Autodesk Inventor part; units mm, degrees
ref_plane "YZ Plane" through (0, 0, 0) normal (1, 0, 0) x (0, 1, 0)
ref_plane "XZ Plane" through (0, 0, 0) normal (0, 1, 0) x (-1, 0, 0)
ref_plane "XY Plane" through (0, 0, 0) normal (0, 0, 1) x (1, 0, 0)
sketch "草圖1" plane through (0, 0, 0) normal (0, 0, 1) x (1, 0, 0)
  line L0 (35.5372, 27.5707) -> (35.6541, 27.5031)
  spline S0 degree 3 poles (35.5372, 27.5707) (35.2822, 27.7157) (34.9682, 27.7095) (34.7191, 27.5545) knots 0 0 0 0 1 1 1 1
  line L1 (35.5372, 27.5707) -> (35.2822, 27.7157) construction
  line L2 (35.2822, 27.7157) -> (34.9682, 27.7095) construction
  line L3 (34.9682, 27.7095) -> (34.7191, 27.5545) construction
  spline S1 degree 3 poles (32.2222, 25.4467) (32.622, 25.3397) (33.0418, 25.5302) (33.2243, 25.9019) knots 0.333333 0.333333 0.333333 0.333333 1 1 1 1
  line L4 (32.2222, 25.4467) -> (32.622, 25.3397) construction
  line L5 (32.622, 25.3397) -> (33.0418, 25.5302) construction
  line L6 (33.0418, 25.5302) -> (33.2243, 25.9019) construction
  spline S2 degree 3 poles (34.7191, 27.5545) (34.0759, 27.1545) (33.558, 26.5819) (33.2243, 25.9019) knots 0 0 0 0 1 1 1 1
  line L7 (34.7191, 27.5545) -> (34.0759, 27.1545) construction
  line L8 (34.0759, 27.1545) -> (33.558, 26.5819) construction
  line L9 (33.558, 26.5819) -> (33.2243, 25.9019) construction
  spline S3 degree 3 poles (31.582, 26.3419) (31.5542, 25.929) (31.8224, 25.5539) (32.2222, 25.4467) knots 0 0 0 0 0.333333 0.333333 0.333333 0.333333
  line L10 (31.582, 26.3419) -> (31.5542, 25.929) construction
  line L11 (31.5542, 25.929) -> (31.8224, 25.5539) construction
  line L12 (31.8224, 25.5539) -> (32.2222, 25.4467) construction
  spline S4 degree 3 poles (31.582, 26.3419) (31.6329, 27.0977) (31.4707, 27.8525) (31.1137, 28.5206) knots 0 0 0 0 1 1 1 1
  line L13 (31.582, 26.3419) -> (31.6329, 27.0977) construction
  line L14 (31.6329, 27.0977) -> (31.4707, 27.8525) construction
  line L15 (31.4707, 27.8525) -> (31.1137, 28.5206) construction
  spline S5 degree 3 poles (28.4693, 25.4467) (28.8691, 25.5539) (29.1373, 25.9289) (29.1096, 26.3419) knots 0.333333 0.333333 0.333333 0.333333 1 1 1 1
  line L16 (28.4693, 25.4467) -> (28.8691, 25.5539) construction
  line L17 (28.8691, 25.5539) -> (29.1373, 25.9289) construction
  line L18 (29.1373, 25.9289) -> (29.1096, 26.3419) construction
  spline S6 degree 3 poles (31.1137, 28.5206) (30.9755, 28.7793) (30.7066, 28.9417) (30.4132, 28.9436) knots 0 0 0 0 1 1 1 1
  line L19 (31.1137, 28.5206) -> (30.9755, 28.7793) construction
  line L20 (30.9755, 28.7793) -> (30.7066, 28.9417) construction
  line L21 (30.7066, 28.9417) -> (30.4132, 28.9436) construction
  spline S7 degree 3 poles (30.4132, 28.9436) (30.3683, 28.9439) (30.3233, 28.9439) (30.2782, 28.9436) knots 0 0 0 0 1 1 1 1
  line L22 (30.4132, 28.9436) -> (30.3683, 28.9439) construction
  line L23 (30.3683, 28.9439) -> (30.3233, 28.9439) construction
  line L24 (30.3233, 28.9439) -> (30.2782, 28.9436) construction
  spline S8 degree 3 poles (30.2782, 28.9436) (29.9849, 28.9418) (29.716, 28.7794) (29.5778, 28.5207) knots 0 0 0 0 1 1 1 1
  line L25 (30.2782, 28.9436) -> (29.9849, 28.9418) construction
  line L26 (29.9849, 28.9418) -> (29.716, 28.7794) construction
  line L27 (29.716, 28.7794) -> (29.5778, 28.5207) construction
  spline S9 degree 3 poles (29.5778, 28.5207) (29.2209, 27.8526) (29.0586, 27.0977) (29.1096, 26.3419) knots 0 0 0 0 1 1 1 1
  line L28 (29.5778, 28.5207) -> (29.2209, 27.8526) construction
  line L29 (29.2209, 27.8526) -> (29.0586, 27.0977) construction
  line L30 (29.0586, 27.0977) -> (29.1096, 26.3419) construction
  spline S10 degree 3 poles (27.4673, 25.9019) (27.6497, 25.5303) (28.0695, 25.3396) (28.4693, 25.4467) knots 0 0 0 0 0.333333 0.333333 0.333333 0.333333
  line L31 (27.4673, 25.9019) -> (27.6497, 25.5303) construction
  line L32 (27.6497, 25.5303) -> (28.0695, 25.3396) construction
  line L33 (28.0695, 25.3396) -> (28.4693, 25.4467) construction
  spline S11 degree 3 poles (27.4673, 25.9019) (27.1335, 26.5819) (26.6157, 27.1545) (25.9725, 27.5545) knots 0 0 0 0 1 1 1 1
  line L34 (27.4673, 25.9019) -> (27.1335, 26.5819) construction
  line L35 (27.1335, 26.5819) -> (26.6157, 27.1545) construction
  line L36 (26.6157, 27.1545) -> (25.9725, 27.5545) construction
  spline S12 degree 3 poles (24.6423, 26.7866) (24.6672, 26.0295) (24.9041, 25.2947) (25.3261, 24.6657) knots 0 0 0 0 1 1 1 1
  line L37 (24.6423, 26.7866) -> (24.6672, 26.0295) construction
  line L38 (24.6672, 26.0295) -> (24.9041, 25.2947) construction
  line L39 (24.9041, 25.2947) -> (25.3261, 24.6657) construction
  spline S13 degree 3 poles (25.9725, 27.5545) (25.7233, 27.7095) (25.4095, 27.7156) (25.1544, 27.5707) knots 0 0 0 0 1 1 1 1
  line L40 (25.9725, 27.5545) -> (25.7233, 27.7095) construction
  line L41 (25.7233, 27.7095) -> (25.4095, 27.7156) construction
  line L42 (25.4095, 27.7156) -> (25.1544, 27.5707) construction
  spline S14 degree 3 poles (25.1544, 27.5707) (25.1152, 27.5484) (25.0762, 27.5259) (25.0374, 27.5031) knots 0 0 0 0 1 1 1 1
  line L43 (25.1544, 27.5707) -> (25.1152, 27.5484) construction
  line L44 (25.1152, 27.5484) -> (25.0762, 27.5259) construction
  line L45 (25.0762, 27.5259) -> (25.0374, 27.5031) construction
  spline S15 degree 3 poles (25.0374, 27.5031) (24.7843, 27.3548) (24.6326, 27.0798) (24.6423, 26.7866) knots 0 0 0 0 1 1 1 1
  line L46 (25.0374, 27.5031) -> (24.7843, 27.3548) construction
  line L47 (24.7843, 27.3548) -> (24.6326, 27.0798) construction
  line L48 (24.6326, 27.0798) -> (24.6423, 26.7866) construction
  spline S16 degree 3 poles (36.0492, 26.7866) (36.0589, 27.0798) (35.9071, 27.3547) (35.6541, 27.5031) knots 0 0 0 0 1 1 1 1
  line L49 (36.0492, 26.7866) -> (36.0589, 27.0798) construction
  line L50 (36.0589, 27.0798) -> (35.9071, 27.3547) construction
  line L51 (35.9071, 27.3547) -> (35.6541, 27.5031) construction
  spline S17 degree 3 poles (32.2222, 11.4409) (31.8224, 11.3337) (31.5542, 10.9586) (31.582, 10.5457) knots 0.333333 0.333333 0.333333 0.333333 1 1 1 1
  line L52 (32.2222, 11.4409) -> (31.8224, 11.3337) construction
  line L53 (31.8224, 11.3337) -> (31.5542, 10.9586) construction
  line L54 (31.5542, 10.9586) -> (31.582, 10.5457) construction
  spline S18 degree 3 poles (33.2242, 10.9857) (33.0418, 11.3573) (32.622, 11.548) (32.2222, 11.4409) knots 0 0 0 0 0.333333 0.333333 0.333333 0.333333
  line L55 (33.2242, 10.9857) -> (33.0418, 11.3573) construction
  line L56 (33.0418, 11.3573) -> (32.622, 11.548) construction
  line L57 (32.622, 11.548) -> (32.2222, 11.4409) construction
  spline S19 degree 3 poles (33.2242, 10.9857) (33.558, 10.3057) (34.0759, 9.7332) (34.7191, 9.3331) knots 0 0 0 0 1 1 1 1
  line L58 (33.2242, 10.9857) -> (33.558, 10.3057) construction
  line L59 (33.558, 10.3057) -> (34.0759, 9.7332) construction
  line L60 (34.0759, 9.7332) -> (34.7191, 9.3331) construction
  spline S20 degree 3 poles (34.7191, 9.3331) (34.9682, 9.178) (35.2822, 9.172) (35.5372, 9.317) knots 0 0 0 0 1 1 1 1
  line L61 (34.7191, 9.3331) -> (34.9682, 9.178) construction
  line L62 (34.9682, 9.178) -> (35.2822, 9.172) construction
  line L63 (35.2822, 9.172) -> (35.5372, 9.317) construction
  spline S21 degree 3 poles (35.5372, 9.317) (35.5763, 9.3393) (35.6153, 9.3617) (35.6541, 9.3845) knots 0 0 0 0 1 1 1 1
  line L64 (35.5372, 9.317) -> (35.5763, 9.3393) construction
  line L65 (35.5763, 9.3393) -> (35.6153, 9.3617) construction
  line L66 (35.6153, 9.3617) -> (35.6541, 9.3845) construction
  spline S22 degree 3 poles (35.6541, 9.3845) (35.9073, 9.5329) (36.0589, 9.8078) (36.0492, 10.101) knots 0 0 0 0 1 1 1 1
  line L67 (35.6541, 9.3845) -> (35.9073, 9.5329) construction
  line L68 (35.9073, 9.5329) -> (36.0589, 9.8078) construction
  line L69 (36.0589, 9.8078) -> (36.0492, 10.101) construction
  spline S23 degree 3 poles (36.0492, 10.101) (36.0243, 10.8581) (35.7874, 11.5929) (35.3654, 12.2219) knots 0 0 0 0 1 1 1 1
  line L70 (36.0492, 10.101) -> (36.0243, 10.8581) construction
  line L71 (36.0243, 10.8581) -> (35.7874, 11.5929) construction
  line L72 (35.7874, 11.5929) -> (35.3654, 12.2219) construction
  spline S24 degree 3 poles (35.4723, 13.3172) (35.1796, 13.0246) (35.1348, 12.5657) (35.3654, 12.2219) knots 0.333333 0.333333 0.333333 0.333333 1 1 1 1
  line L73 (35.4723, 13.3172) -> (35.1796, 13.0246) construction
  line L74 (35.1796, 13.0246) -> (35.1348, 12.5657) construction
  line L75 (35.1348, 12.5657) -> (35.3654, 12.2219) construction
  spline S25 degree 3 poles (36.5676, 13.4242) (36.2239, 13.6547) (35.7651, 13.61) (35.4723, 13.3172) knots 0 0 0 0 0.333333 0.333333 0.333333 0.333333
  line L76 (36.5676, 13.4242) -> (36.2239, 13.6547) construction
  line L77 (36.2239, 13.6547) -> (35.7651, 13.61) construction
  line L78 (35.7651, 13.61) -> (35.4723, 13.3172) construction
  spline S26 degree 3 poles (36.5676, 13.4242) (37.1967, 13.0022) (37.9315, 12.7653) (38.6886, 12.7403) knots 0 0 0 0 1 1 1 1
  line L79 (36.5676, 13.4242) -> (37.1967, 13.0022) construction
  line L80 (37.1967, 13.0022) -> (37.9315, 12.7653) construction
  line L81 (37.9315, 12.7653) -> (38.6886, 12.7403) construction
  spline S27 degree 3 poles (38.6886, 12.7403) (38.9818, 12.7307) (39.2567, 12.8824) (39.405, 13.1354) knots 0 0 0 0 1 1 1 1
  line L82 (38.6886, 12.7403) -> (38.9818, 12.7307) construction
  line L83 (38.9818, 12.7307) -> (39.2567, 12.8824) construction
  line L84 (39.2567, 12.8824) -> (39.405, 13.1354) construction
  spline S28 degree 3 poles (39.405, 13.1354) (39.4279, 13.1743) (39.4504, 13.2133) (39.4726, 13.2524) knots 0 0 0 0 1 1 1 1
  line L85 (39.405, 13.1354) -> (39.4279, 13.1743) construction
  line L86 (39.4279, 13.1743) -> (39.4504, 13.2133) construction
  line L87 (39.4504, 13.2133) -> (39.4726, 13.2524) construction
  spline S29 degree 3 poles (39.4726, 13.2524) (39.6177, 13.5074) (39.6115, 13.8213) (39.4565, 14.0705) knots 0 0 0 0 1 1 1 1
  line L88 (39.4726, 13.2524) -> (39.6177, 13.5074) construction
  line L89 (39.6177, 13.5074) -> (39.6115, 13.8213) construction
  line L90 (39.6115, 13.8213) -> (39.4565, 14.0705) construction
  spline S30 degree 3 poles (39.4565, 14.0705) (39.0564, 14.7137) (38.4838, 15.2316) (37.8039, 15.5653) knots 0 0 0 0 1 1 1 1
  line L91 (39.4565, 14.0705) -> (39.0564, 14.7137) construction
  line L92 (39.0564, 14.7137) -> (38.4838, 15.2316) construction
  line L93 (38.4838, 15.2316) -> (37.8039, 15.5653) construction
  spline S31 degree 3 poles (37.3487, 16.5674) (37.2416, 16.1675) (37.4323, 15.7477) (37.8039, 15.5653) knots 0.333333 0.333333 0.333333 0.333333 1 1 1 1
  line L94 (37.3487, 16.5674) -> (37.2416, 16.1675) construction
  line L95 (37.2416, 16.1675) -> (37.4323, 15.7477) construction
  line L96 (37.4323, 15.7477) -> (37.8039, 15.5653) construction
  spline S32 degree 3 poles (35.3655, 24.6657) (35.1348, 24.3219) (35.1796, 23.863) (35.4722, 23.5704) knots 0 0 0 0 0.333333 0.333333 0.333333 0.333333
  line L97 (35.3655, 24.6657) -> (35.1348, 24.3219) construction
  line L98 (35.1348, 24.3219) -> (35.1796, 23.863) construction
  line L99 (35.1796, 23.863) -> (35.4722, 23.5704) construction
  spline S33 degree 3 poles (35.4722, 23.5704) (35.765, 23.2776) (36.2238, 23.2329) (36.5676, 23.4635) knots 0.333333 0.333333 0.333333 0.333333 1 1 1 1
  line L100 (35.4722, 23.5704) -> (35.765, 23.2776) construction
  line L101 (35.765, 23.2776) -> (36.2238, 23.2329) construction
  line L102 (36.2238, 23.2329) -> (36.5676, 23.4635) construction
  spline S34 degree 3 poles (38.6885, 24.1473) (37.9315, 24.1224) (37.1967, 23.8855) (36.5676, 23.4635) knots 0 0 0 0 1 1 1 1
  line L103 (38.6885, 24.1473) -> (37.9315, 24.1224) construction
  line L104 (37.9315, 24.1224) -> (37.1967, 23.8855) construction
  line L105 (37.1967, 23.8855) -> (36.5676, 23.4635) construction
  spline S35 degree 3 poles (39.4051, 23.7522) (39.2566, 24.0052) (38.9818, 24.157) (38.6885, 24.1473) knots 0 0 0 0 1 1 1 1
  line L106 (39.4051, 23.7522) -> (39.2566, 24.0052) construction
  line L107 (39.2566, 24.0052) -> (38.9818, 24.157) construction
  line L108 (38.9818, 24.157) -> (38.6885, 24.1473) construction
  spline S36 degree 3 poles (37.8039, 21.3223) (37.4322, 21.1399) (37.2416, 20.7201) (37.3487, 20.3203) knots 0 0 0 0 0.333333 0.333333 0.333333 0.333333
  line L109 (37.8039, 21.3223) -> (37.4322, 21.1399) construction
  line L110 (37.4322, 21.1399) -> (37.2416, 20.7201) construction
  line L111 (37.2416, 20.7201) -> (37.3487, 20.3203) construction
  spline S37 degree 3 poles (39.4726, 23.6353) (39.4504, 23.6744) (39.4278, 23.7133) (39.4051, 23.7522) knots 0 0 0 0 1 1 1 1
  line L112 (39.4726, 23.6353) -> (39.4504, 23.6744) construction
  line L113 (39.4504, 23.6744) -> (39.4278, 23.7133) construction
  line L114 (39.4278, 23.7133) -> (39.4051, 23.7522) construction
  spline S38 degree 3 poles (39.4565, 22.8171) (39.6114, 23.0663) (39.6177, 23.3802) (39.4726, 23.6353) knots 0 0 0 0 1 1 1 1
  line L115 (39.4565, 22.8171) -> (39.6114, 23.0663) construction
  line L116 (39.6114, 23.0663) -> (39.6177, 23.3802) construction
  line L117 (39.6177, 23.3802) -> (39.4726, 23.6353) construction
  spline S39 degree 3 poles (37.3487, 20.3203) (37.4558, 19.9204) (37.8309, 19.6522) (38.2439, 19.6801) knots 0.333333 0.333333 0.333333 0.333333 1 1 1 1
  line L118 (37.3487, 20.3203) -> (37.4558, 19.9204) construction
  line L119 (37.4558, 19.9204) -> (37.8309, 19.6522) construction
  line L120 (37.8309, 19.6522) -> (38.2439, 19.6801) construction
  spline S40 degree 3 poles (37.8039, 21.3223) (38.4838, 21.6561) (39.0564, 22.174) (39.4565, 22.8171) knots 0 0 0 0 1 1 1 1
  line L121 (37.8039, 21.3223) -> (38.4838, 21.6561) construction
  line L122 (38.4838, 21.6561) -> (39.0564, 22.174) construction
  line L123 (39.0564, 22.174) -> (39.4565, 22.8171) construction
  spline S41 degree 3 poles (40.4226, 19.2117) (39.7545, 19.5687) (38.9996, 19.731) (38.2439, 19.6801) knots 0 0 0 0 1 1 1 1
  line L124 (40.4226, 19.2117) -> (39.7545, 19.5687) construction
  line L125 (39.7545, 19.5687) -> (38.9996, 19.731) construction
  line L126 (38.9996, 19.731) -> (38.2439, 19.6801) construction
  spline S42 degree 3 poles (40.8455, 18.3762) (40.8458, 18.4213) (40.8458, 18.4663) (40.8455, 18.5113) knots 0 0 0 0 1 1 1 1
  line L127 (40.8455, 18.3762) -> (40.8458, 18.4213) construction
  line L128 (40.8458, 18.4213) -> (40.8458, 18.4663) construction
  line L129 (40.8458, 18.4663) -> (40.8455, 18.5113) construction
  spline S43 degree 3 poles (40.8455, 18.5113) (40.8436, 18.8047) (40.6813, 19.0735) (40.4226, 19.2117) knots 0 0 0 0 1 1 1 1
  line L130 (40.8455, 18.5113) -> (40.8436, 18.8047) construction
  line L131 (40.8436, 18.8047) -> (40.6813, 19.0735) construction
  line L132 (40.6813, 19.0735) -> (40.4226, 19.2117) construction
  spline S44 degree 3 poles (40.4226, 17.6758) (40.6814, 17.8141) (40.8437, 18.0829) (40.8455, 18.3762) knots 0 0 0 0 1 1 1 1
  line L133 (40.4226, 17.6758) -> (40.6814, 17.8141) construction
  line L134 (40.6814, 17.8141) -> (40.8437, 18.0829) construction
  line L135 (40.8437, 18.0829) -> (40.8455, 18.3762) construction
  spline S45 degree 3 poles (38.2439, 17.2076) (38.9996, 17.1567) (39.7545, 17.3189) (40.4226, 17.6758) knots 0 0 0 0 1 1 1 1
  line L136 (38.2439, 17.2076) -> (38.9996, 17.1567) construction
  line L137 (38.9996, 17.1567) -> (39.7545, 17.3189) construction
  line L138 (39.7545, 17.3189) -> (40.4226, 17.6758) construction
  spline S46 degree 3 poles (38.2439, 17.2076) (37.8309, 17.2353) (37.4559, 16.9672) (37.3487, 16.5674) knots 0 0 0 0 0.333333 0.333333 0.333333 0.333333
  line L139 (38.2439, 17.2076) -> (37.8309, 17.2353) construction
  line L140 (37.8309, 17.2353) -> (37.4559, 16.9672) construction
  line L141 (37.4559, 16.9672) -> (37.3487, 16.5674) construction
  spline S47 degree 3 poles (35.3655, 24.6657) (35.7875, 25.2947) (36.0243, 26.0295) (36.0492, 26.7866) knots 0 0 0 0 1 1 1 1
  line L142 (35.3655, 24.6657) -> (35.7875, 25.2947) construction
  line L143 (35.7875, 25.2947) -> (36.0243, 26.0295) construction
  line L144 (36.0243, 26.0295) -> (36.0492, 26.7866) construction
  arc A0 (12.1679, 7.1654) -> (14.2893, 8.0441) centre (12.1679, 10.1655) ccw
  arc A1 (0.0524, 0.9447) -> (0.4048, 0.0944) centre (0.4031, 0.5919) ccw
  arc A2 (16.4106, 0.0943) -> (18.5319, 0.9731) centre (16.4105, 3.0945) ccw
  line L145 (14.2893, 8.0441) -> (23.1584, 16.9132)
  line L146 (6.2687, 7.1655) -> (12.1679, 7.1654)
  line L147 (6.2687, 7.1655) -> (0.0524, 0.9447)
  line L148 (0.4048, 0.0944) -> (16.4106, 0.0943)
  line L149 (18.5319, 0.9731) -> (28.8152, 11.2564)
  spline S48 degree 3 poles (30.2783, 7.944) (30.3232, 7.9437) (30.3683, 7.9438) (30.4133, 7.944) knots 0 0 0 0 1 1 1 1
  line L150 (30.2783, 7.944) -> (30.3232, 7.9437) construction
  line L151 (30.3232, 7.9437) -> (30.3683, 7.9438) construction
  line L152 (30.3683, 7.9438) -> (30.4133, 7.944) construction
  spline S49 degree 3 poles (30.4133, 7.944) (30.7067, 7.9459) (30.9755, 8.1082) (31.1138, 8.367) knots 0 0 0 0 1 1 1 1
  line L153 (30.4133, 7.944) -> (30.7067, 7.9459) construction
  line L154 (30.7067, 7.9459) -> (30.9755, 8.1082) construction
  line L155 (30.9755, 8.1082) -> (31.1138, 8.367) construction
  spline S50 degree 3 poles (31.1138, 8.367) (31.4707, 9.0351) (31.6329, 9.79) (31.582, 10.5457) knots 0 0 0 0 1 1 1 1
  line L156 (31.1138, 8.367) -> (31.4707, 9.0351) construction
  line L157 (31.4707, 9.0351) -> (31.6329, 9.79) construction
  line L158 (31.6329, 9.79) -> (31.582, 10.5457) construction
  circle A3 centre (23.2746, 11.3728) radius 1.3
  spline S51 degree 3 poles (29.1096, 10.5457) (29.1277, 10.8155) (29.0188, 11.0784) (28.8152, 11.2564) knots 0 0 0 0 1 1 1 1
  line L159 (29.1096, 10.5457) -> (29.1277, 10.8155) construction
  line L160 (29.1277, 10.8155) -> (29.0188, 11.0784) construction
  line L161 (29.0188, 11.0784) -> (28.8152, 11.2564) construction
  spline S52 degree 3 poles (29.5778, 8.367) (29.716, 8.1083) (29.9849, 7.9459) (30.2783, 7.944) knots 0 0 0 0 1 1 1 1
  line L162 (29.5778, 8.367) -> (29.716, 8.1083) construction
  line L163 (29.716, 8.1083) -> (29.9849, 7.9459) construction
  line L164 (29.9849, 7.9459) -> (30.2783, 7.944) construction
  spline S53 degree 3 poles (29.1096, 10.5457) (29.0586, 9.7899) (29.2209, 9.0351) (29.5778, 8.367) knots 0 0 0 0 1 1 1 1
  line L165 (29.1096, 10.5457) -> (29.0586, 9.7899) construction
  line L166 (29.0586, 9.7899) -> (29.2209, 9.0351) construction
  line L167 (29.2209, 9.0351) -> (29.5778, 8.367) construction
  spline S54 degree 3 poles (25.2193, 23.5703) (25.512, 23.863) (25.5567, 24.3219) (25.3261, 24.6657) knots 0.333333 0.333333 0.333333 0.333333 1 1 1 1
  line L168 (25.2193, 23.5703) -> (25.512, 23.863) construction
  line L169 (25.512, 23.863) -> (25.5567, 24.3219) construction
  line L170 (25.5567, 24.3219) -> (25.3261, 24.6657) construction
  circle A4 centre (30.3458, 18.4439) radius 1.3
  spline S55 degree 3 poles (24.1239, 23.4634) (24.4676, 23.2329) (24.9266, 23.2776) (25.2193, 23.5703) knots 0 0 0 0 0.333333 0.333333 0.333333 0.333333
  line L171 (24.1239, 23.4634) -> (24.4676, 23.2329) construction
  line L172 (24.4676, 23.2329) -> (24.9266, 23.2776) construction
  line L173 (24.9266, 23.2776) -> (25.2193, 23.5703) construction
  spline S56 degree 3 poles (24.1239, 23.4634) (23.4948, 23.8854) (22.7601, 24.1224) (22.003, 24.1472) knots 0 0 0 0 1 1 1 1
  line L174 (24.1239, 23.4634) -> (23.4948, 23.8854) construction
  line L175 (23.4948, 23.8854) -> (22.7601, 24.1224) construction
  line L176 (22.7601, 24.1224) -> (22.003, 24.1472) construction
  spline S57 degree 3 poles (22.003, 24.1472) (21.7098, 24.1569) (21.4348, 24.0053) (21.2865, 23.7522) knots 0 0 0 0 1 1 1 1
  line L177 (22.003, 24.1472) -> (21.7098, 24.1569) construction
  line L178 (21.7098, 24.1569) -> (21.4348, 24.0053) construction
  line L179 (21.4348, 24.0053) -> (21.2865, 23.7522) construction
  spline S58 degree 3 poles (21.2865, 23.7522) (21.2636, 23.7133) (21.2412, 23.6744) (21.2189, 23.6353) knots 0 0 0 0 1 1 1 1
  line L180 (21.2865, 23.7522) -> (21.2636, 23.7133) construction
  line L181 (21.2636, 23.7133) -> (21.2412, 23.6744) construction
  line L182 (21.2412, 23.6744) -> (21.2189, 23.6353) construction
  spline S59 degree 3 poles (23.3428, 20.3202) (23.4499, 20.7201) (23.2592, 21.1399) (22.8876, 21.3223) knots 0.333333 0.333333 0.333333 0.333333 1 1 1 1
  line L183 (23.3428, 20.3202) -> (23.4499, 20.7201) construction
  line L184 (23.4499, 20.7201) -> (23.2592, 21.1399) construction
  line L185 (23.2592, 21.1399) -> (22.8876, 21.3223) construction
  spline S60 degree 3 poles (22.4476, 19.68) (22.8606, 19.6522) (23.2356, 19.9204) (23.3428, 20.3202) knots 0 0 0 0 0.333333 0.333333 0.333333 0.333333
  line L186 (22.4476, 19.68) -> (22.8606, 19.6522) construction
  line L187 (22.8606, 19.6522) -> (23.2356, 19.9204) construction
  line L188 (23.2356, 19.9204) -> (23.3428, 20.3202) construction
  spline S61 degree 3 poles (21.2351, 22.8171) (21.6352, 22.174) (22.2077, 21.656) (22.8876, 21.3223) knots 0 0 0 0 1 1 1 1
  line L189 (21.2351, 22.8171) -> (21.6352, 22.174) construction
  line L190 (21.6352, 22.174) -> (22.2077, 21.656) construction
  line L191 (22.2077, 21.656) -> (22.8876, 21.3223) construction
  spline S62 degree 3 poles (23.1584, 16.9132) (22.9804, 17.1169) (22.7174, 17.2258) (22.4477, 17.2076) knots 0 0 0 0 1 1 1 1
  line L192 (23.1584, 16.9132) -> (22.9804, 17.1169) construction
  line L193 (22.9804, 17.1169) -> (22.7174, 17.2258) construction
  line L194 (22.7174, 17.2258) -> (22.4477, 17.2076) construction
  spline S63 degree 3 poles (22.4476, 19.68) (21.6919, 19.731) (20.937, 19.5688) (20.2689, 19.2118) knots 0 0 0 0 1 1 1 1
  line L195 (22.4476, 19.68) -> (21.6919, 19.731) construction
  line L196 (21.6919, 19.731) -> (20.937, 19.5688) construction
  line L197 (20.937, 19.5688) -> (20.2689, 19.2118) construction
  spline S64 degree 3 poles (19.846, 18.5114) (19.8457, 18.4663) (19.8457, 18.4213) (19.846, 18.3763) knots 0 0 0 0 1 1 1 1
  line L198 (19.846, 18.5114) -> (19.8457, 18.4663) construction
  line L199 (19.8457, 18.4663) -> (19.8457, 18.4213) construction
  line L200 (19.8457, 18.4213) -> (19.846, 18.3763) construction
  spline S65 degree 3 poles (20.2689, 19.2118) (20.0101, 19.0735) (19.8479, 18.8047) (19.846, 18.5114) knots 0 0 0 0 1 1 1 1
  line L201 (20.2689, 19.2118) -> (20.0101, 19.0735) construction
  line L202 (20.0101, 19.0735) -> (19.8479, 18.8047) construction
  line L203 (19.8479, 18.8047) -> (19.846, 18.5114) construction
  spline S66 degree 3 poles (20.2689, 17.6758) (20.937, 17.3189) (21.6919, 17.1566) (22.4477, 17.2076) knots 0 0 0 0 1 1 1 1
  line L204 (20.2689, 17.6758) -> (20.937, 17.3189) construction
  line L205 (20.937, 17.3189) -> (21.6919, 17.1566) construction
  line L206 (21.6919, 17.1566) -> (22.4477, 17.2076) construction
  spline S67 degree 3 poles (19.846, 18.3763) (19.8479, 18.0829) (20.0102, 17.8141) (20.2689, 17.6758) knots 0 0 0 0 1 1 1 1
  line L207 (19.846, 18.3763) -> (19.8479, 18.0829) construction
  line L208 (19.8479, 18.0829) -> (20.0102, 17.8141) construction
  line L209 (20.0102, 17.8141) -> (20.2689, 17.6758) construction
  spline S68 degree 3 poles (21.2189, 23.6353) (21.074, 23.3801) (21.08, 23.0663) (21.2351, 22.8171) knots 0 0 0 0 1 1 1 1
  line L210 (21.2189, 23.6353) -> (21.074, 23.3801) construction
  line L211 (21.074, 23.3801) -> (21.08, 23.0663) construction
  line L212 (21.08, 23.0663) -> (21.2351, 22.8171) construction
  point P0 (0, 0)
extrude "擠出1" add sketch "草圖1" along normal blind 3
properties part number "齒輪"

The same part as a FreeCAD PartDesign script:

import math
import FreeCAD as App
import Part
import Sketcher

V = App.Vector

doc = App.newDocument("Part")
body = doc.addObject("PartDesign::Body", "Body")

# Sketch on XY plane
sketch1 = body.newObject("Sketcher::SketchObject", "Sketch")
sketch1.AttachmentSupport = (doc.getObject("XY_Plane"), [""])
sketch1.MapMode = "FlatFace"
sketch1.addGeometry([
    Part.LineSegment(V(35.6541, 27.5031, 0), V(35.5372, 27.5707, 0)),  # 0
    Part.BSplineCurve([V(35.5372, 27.5707, 0), V(35.2822, 27.7157, 0), V(34.9682, 27.7095, 0), V(34.7191, 27.5545, 0)], [4, 4], [0, 1], False, 3, [1, 1, 1, 1], False),  # 1
    Part.BSplineCurve([V(34.7191, 27.5545, 0), V(34.0759, 27.1545, 0), V(33.558, 26.5819, 0), V(33.2243, 25.9019, 0)], [4, 4], [0, 1], False, 3, [1, 1, 1, 1], False),  # 2
    Part.BSplineCurve([V(32.2222, 25.4467, 0), V(32.622, 25.3397, 0), V(33.0418, 25.5302, 0), V(33.2243, 25.9019, 0)], [4, 4], [0.333333, 1], False, 3, [1, 1, 1, 1], False),  # 3
    Part.BSplineCurve([V(31.582, 26.3419, 0), V(31.5542, 25.929, 0), V(31.8224, 25.5539, 0), V(32.2222, 25.4467, 0)], [4, 4], [0, 0.333333], False, 3, [1, 1, 1, 1], False),  # 4
    Part.BSplineCurve([V(31.582, 26.3419, 0), V(31.6329, 27.0977, 0), V(31.4707, 27.8525, 0), V(31.1137, 28.5206, 0)], [4, 4], [0, 1], False, 3, [1, 1, 1, 1], False),  # 5
    Part.BSplineCurve([V(31.1137, 28.5206, 0), V(30.9755, 28.7793, 0), V(30.7066, 28.9417, 0), V(30.4132, 28.9436, 0)], [4, 4], [0, 1], False, 3, [1, 1, 1, 1], False),  # 6
    Part.BSplineCurve([V(30.4132, 28.9436, 0), V(30.3683, 28.9439, 0), V(30.3233, 28.9439, 0), V(30.2782, 28.9436, 0)], [4, 4], [0, 1], False, 3, [1, 1, 1, 1], False),  # 7
    Part.BSplineCurve([V(30.2782, 28.9436, 0), V(29.9849, 28.9418, 0), V(29.716, 28.7794, 0), V(29.5778, 28.5207, 0)], [4, 4], [0, 1], False, 3, [1, 1, 1, 1], False),  # 8
    Part.BSplineCurve([V(29.5778, 28.5207, 0), V(29.2209, 27.8526, 0), V(29.0586, 27.0977, 0), V(29.1096, 26.3419, 0)], [4, 4], [0, 1], False, 3, [1, 1, 1, 1], False),  # 9
    Part.BSplineCurve([V(28.4693, 25.4467, 0), V(28.8691, 25.5539, 0), V(29.1373, 25.9289, 0), V(29.1096, 26.3419, 0)], [4, 4], [0.333333, 1], False, 3, [1, 1, 1, 1], False),  # 10
    Part.BSplineCurve([V(27.4673, 25.9019, 0), V(27.6497, 25.5303, 0), V(28.0695, 25.3396, 0), V(28.4693, 25.4467, 0)], [4, 4], [0, 0.333333], False, 3, [1, 1, 1, 1], False),  # 11
    Part.BSplineCurve([V(27.4673, 25.9019, 0), V(27.1335, 26.5819, 0), V(26.6157, 27.1545, 0), V(25.9725, 27.5545, 0)], [4, 4], [0, 1], False, 3, [1, 1, 1, 1], False),  # 12
    Part.BSplineCurve([V(25.9725, 27.5545, 0), V(25.7233, 27.7095, 0), V(25.4095, 27.7156, 0), V(25.1544, 27.5707, 0)], [4, 4], [0, 1], False, 3, [1, 1, 1, 1], False),  # 13
    Part.BSplineCurve([V(25.1544, 27.5707, 0), V(25.1152, 27.5484, 0), V(25.0762, 27.5259, 0), V(25.0374, 27.5031, 0)], [4, 4], [0, 1], False, 3, [1, 1, 1, 1], False),  # 14
    Part.BSplineCurve([V(25.0374, 27.5031, 0), V(24.7843, 27.3548, 0), V(24.6326, 27.0798, 0), V(24.6423, 26.7866, 0)], [4, 4], [0, 1], False, 3, [1, 1, 1, 1], False),  # 15
    Part.BSplineCurve([V(24.6423, 26.7866, 0), V(24.6672, 26.0295, 0), V(24.9041, 25.2947, 0), V(25.3261, 24.6657, 0)], [4, 4], [0, 1], False, 3, [1, 1, 1, 1], False),  # 16
    Part.BSplineCurve([V(25.2193, 23.5703, 0), V(25.512, 23.863, 0), V(25.5567, 24.3219, 0), V(25.3261, 24.6657, 0)], [4, 4], [0.333333, 1], False, 3, [1, 1, 1, 1], False),  # 17
    Part.BSplineCurve([V(24.1239, 23.4634, 0), V(24.4676, 23.2329, 0), V(24.9266, 23.2776, 0), V(25.2193, 23.5703, 0)], [4, 4], [0, 0.333333], False, 3, [1, 1, 1, 1], False),  # 18
    Part.BSplineCurve([V(24.1239, 23.4634, 0), V(23.4948, 23.8854, 0), V(22.7601, 24.1224, 0), V(22.003, 24.1472, 0)], [4, 4], [0, 1], False, 3, [1, 1, 1, 1], False),  # 19
    Part.BSplineCurve([V(22.003, 24.1472, 0), V(21.7098, 24.1569, 0), V(21.4348, 24.0053, 0), V(21.2865, 23.7522, 0)], [4, 4], [0, 1], False, 3, [1, 1, 1, 1], False),  # 20
    Part.BSplineCurve([V(21.2865, 23.7522, 0), V(21.2636, 23.7133, 0), V(21.2412, 23.6744, 0), V(21.2189, 23.6353, 0)], [4, 4], [0, 1], False, 3, [1, 1, 1, 1], False),  # 21
    Part.BSplineCurve([V(21.2189, 23.6353, 0), V(21.074, 23.3801, 0), V(21.08, 23.0663, 0), V(21.2351, 22.8171, 0)], [4, 4], [0, 1], False, 3, [1, 1, 1, 1], False),  # 22
    Part.BSplineCurve([V(21.2351, 22.8171, 0), V(21.6352, 22.174, 0), V(22.2077, 21.656, 0), V(22.8876, 21.3223, 0)], [4, 4], [0, 1], False, 3, [1, 1, 1, 1], False),  # 23
    Part.BSplineCurve([V(23.3428, 20.3202, 0), V(23.4499, 20.7201, 0), V(23.2592, 21.1399, 0), V(22.8876, 21.3223, 0)], [4, 4], [0.333333, 1], False, 3, [1, 1, 1, 1], False),  # 24
    Part.BSplineCurve([V(22.4476, 19.68, 0), V(22.8606, 19.6522, 0), V(23.2356, 19.9204, 0), V(23.3428, 20.3202, 0)], [4, 4], [0, 0.333333], False, 3, [1, 1, 1, 1], False),  # 25
    Part.BSplineCurve([V(22.4476, 19.68, 0), V(21.6919, 19.731, 0), V(20.937, 19.5688, 0), V(20.2689, 19.2118, 0)], [4, 4], [0, 1], False, 3, [1, 1, 1, 1], False),  # 26
    Part.BSplineCurve([V(20.2689, 19.2118, 0), V(20.0101, 19.0735, 0), V(19.8479, 18.8047, 0), V(19.846, 18.5114, 0)], [4, 4], [0, 1], False, 3, [1, 1, 1, 1], False),  # 27
    Part.BSplineCurve([V(19.846, 18.5114, 0), V(19.8457, 18.4663, 0), V(19.8457, 18.4213, 0), V(19.846, 18.3763, 0)], [4, 4], [0, 1], False, 3, [1, 1, 1, 1], False),  # 28
    Part.BSplineCurve([V(19.846, 18.3763, 0), V(19.8479, 18.0829, 0), V(20.0102, 17.8141, 0), V(20.2689, 17.6758, 0)], [4, 4], [0, 1], False, 3, [1, 1, 1, 1], False),  # 29
    Part.BSplineCurve([V(20.2689, 17.6758, 0), V(20.937, 17.3189, 0), V(21.6919, 17.1566, 0), V(22.4477, 17.2076, 0)], [4, 4], [0, 1], False, 3, [1, 1, 1, 1], False),  # 30
    Part.BSplineCurve([V(23.1584, 16.9132, 0), V(22.9804, 17.1169, 0), V(22.7174, 17.2258, 0), V(22.4477, 17.2076, 0)], [4, 4], [0, 1], False, 3, [1, 1, 1, 1], False),  # 31
    Part.LineSegment(V(23.1584, 16.9132, 0), V(14.2893, 8.0441, 0)),  # 32
    Part.ArcOfCircle(Part.Circle(V(12.1679, 10.1655, 0), V(0, 0, 1), 3.0001), math.radians(-90), math.radians(-45)),  # 33
    Part.LineSegment(V(12.1679, 7.1654, 0), V(6.2687, 7.1655, 0)),  # 34
    Part.LineSegment(V(6.2687, 7.1655, 0), V(0.0524, 0.9447, 0)),  # 35
    Part.ArcOfCircle(Part.Circle(V(0.4031, 0.5919, 0), V(0, 0, 1), 0.497452), math.radians(134.828968), math.radians(270.195784)),  # 36
    Part.LineSegment(V(0.4048, 0.0944, 0), V(16.4106, 0.0943, 0)),  # 37
    Part.ArcOfCircle(Part.Circle(V(16.4105, 3.0945, 0), V(0, 0, 1), 3.0002), math.radians(-89.99809), math.radians(-45)),  # 38
    Part.LineSegment(V(18.5319, 0.9731, 0), V(28.8152, 11.2564, 0)),  # 39
    Part.BSplineCurve([V(29.1096, 10.5457, 0), V(29.1277, 10.8155, 0), V(29.0188, 11.0784, 0), V(28.8152, 11.2564, 0)], [4, 4], [0, 1], False, 3, [1, 1, 1, 1], False),  # 40
    Part.BSplineCurve([V(29.1096, 10.5457, 0), V(29.0586, 9.7899, 0), V(29.2209, 9.0351, 0), V(29.5778, 8.367, 0)], [4, 4], [0, 1], False, 3, [1, 1, 1, 1], False),  # 41
    Part.BSplineCurve([V(29.5778, 8.367, 0), V(29.716, 8.1083, 0), V(29.9849, 7.9459, 0), V(30.2783, 7.944, 0)], [4, 4], [0, 1], False, 3, [1, 1, 1, 1], False),  # 42
    Part.BSplineCurve([V(30.2783, 7.944, 0), V(30.3232, 7.9437, 0), V(30.3683, 7.9438, 0), V(30.4133, 7.944, 0)], [4, 4], [0, 1], False, 3, [1, 1, 1, 1], False),  # 43
    Part.BSplineCurve([V(30.4133, 7.944, 0), V(30.7067, 7.9459, 0), V(30.9755, 8.1082, 0), V(31.1138, 8.367, 0)], [4, 4], [0, 1], False, 3, [1, 1, 1, 1], False),  # 44
    Part.BSplineCurve([V(31.1138, 8.367, 0), V(31.4707, 9.0351, 0), V(31.6329, 9.79, 0), V(31.582, 10.5457, 0)], [4, 4], [0, 1], False, 3, [1, 1, 1, 1], False),  # 45
    Part.BSplineCurve([V(32.2222, 11.4409, 0), V(31.8224, 11.3337, 0), V(31.5542, 10.9586, 0), V(31.582, 10.5457, 0)], [4, 4], [0.333333, 1], False, 3, [1, 1, 1, 1], False),  # 46
    Part.BSplineCurve([V(33.2242, 10.9857, 0), V(33.0418, 11.3573, 0), V(32.622, 11.548, 0), V(32.2222, 11.4409, 0)], [4, 4], [0, 0.333333], False, 3, [1, 1, 1, 1], False),  # 47
    Part.BSplineCurve([V(33.2242, 10.9857, 0), V(33.558, 10.3057, 0), V(34.0759, 9.7332, 0), V(34.7191, 9.3331, 0)], [4, 4], [0, 1], False, 3, [1, 1, 1, 1], False),  # 48
    Part.BSplineCurve([V(34.7191, 9.3331, 0), V(34.9682, 9.178, 0), V(35.2822, 9.172, 0), V(35.5372, 9.317, 0)], [4, 4], [0, 1], False, 3, [1, 1, 1, 1], False),  # 49
    Part.BSplineCurve([V(35.5372, 9.317, 0), V(35.5763, 9.3393, 0), V(35.6153, 9.3617, 0), V(35.6541, 9.3845, 0)], [4, 4], [0, 1], False, 3, [1, 1, 1, 1], False),  # 50
    Part.BSplineCurve([V(35.6541, 9.3845, 0), V(35.9073, 9.5329, 0), V(36.0589, 9.8078, 0), V(36.0492, 10.101, 0)], [4, 4], [0, 1], False, 3, [1, 1, 1, 1], False),  # 51
    Part.BSplineCurve([V(36.0492, 10.101, 0), V(36.0243, 10.8581, 0), V(35.7874, 11.5929, 0), V(35.3654, 12.2219, 0)], [4, 4], [0, 1], False, 3, [1, 1, 1, 1], False),  # 52
    Part.BSplineCurve([V(35.4723, 13.3172, 0), V(35.1796, 13.0246, 0), V(35.1348, 12.5657, 0), V(35.3654, 12.2219, 0)], [4, 4], [0.333333, 1], False, 3, [1, 1, 1, 1], False),  # 53
    Part.BSplineCurve([V(36.5676, 13.4242, 0), V(36.2239, 13.6547, 0), V(35.7651, 13.61, 0), V(35.4723, 13.3172, 0)], [4, 4], [0, 0.333333], False, 3, [1, 1, 1, 1], False),  # 54
    Part.BSplineCurve([V(36.5676, 13.4242, 0), V(37.1967, 13.0022, 0), V(37.9315, 12.7653, 0), V(38.6886, 12.7403, 0)], [4, 4], [0, 1], False, 3, [1, 1, 1, 1], False),  # 55
    Part.BSplineCurve([V(38.6886, 12.7403, 0), V(38.9818, 12.7307, 0), V(39.2567, 12.8824, 0), V(39.405, 13.1354, 0)], [4, 4], [0, 1], False, 3, [1, 1, 1, 1], False),  # 56
    Part.BSplineCurve([V(39.405, 13.1354, 0), V(39.4279, 13.1743, 0), V(39.4504, 13.2133, 0), V(39.4726, 13.2524, 0)], [4, 4], [0, 1], False, 3, [1, 1, 1, 1], False),  # 57
    Part.BSplineCurve([V(39.4726, 13.2524, 0), V(39.6177, 13.5074, 0), V(39.6115, 13.8213, 0), V(39.4565, 14.0705, 0)], [4, 4], [0, 1], False, 3, [1, 1, 1, 1], False),  # 58
    Part.BSplineCurve([V(39.4565, 14.0705, 0), V(39.0564, 14.7137, 0), V(38.4838, 15.2316, 0), V(37.8039, 15.5653, 0)], [4, 4], [0, 1], False, 3, [1, 1, 1, 1], False),  # 59
    Part.BSplineCurve([V(37.3487, 16.5674, 0), V(37.2416, 16.1675, 0), V(37.4323, 15.7477, 0), V(37.8039, 15.5653, 0)], [4, 4], [0.333333, 1], False, 3, [1, 1, 1, 1], False),  # 60
    Part.BSplineCurve([V(38.2439, 17.2076, 0), V(37.8309, 17.2353, 0), V(37.4559, 16.9672, 0), V(37.3487, 16.5674, 0)], [4, 4], [0, 0.333333], False, 3, [1, 1, 1, 1], False),  # 61
    Part.BSplineCurve([V(38.2439, 17.2076, 0), V(38.9996, 17.1567, 0), V(39.7545, 17.3189, 0), V(40.4226, 17.6758, 0)], [4, 4], [0, 1], False, 3, [1, 1, 1, 1], False),  # 62
    Part.BSplineCurve([V(40.4226, 17.6758, 0), V(40.6814, 17.8141, 0), V(40.8437, 18.0829, 0), V(40.8455, 18.3762, 0)], [4, 4], [0, 1], False, 3, [1, 1, 1, 1], False),  # 63
    Part.BSplineCurve([V(40.8455, 18.3762, 0), V(40.8458, 18.4213, 0), V(40.8458, 18.4663, 0), V(40.8455, 18.5113, 0)], [4, 4], [0, 1], False, 3, [1, 1, 1, 1], False),  # 64
    Part.BSplineCurve([V(40.8455, 18.5113, 0), V(40.8436, 18.8047, 0), V(40.6813, 19.0735, 0), V(40.4226, 19.2117, 0)], [4, 4], [0, 1], False, 3, [1, 1, 1, 1], False),  # 65
    Part.BSplineCurve([V(40.4226, 19.2117, 0), V(39.7545, 19.5687, 0), V(38.9996, 19.731, 0), V(38.2439, 19.6801, 0)], [4, 4], [0, 1], False, 3, [1, 1, 1, 1], False),  # 66
    Part.BSplineCurve([V(37.3487, 20.3203, 0), V(37.4558, 19.9204, 0), V(37.8309, 19.6522, 0), V(38.2439, 19.6801, 0)], [4, 4], [0.333333, 1], False, 3, [1, 1, 1, 1], False),  # 67
    Part.BSplineCurve([V(37.8039, 21.3223, 0), V(37.4322, 21.1399, 0), V(37.2416, 20.7201, 0), V(37.3487, 20.3203, 0)], [4, 4], [0, 0.333333], False, 3, [1, 1, 1, 1], False),  # 68
    Part.BSplineCurve([V(37.8039, 21.3223, 0), V(38.4838, 21.6561, 0), V(39.0564, 22.174, 0), V(39.4565, 22.8171, 0)], [4, 4], [0, 1], False, 3, [1, 1, 1, 1], False),  # 69
    Part.BSplineCurve([V(39.4565, 22.8171, 0), V(39.6114, 23.0663, 0), V(39.6177, 23.3802, 0), V(39.4726, 23.6353, 0)], [4, 4], [0, 1], False, 3, [1, 1, 1, 1], False),  # 70
    Part.BSplineCurve([V(39.4726, 23.6353, 0), V(39.4504, 23.6744, 0), V(39.4278, 23.7133, 0), V(39.4051, 23.7522, 0)], [4, 4], [0, 1], False, 3, [1, 1, 1, 1], False),  # 71
    Part.BSplineCurve([V(39.4051, 23.7522, 0), V(39.2566, 24.0052, 0), V(38.9818, 24.157, 0), V(38.6885, 24.1473, 0)], [4, 4], [0, 1], False, 3, [1, 1, 1, 1], False),  # 72
    Part.BSplineCurve([V(38.6885, 24.1473, 0), V(37.9315, 24.1224, 0), V(37.1967, 23.8855, 0), V(36.5676, 23.4635, 0)], [4, 4], [0, 1], False, 3, [1, 1, 1, 1], False),  # 73
    Part.BSplineCurve([V(35.4722, 23.5704, 0), V(35.765, 23.2776, 0), V(36.2238, 23.2329, 0), V(36.5676, 23.4635, 0)], [4, 4], [0.333333, 1], False, 3, [1, 1, 1, 1], False),  # 74
    Part.BSplineCurve([V(35.3655, 24.6657, 0), V(35.1348, 24.3219, 0), V(35.1796, 23.863, 0), V(35.4722, 23.5704, 0)], [4, 4], [0, 0.333333], False, 3, [1, 1, 1, 1], False),  # 75
    Part.BSplineCurve([V(35.3655, 24.6657, 0), V(35.7875, 25.2947, 0), V(36.0243, 26.0295, 0), V(36.0492, 26.7866, 0)], [4, 4], [0, 1], False, 3, [1, 1, 1, 1], False),  # 76
    Part.BSplineCurve([V(36.0492, 26.7866, 0), V(36.0589, 27.0798, 0), V(35.9071, 27.3547, 0), V(35.6541, 27.5031, 0)], [4, 4], [0, 1], False, 3, [1, 1, 1, 1], False),  # 77
    Part.Circle(V(23.2746, 11.3728, 0), V(0, 0, 1), 1.3),  # 78
    Part.Circle(V(30.3458, 18.4439, 0), V(0, 0, 1), 1.3),  # 79
], False)
sketch1.addConstraint([
    Sketcher.Constraint("Block", 1),
    Sketcher.Constraint("Block", 2),
    Sketcher.Constraint("Block", 3),
    Sketcher.Constraint("Block", 4),
    Sketcher.Constraint("Block", 5),
    Sketcher.Constraint("Block", 6),
    Sketcher.Constraint("Block", 7),
    Sketcher.Constraint("Block", 8),
    Sketcher.Constraint("Block", 9),
    Sketcher.Constraint("Block", 10),
    Sketcher.Constraint("Block", 11),
    Sketcher.Constraint("Block", 12),
    Sketcher.Constraint("Block", 13),
    Sketcher.Constraint("Block", 14),
    Sketcher.Constraint("Block", 15),
    Sketcher.Constraint("Block", 16),
    Sketcher.Constraint("Block", 17),
    Sketcher.Constraint("Block", 18),
    Sketcher.Constraint("Block", 19),
    Sketcher.Constraint("Block", 20),
    Sketcher.Constraint("Block", 21),
    Sketcher.Constraint("Block", 22),
    Sketcher.Constraint("Block", 23),
    Sketcher.Constraint("Block", 24),
    Sketcher.Constraint("Block", 25),
    Sketcher.Constraint("Block", 26),
    Sketcher.Constraint("Block", 27),
    Sketcher.Constraint("Block", 28),
    Sketcher.Constraint("Block", 29),
    Sketcher.Constraint("Block", 30),
    Sketcher.Constraint("Block", 31),
    Sketcher.Constraint("Block", 40),
    Sketcher.Constraint("Block", 41),
    Sketcher.Constraint("Block", 42),
    Sketcher.Constraint("Block", 43),
    Sketcher.Constraint("Block", 44),
    Sketcher.Constraint("Block", 45),
    Sketcher.Constraint("Block", 46),
    Sketcher.Constraint("Block", 47),
    Sketcher.Constraint("Block", 48),
    Sketcher.Constraint("Block", 49),
    Sketcher.Constraint("Block", 50),
    Sketcher.Constraint("Block", 51),
    Sketcher.Constraint("Block", 52),
    Sketcher.Constraint("Block", 53),
    Sketcher.Constraint("Block", 54),
    Sketcher.Constraint("Block", 55),
    Sketcher.Constraint("Block", 56),
    Sketcher.Constraint("Block", 57),
    Sketcher.Constraint("Block", 58),
    Sketcher.Constraint("Block", 59),
    Sketcher.Constraint("Block", 60),
    Sketcher.Constraint("Block", 61),
    Sketcher.Constraint("Block", 62),
    Sketcher.Constraint("Block", 63),
    Sketcher.Constraint("Block", 64),
    Sketcher.Constraint("Block", 65),
    Sketcher.Constraint("Block", 66),
    Sketcher.Constraint("Block", 67),
    Sketcher.Constraint("Block", 68),
    Sketcher.Constraint("Block", 69),
    Sketcher.Constraint("Block", 70),
    Sketcher.Constraint("Block", 71),
    Sketcher.Constraint("Block", 72),
    Sketcher.Constraint("Block", 73),
    Sketcher.Constraint("Block", 74),
    Sketcher.Constraint("Block", 75),
    Sketcher.Constraint("Block", 76),
    Sketcher.Constraint("Block", 77),
    Sketcher.Constraint("Coincident", 0, 2, 1, 1),
    Sketcher.Constraint("Coincident", 31, 1, 32, 1),
    Sketcher.Constraint("Coincident", 32, 2, 33, 2),
    Sketcher.Constraint("Coincident", 33, 1, 34, 1),
    Sketcher.Constraint("Coincident", 34, 2, 35, 1),
    Sketcher.Constraint("Coincident", 35, 2, 36, 1),
    Sketcher.Constraint("Coincident", 36, 2, 37, 1),
    Sketcher.Constraint("Coincident", 37, 2, 38, 1),
    Sketcher.Constraint("Coincident", 38, 2, 39, 1),
    Sketcher.Constraint("Coincident", 39, 2, 40, 2),
    Sketcher.Constraint("Coincident", 77, 2, 0, 1),
    Sketcher.Constraint("Horizontal", 34),
    Sketcher.Constraint("Horizontal", 37),
    Sketcher.Constraint("Radius", 33, 3.0),
    Sketcher.Constraint("Diameter", 78, 2.6),
    Sketcher.Constraint("Diameter", 79, 2.6),
    Sketcher.Constraint("Radius", 36, 0.4975),
    Sketcher.Constraint("Radius", 38, 3.0002),
    Sketcher.Constraint("DistanceX", 34, 2, 34, 1, 5.8992),
    Sketcher.Constraint("DistanceX", 37, 1, 37, 2, 16.0058),
    Sketcher.Constraint("DistanceX", -1, 1, 33, 3, 12.168),
    Sketcher.Constraint("DistanceX", -1, 1, 36, 3, 0.403),
    Sketcher.Constraint("DistanceY", -1, 1, 36, 3, 0.592),
    Sketcher.Constraint("DistanceY", -1, 1, 79, 3, 18.444),
    Sketcher.Constraint("DistanceY", -1, 1, 32, 2, 8.044),
    Sketcher.Constraint("DistanceX", -1, 1, 33, 1, 12.168),
    Sketcher.Constraint("DistanceX", -1, 1, 38, 2, 18.532),
    Sketcher.Constraint("DistanceY", -1, 1, 38, 2, 0.973),
    Sketcher.Constraint("DistanceY", 38, 3, 33, 3, 7.071),
    Sketcher.Constraint("DistanceX", 38, 3, 78, 3, 6.864),
    Sketcher.Constraint("DistanceY", 36, 3, 78, 3, 10.781),
    Sketcher.Constraint("DistanceX", 33, 3, 79, 3, 18.178),
    Sketcher.Constraint("DistanceX", 35, 2, 32, 2, 14.237),
    Sketcher.Constraint("DistanceX", 36, 2, 34, 2, 5.864),
])
pad1 = body.newObject("PartDesign::Pad", "Pad")
pad1.Profile = sketch1
pad1.Length = 3

doc.recompute()
